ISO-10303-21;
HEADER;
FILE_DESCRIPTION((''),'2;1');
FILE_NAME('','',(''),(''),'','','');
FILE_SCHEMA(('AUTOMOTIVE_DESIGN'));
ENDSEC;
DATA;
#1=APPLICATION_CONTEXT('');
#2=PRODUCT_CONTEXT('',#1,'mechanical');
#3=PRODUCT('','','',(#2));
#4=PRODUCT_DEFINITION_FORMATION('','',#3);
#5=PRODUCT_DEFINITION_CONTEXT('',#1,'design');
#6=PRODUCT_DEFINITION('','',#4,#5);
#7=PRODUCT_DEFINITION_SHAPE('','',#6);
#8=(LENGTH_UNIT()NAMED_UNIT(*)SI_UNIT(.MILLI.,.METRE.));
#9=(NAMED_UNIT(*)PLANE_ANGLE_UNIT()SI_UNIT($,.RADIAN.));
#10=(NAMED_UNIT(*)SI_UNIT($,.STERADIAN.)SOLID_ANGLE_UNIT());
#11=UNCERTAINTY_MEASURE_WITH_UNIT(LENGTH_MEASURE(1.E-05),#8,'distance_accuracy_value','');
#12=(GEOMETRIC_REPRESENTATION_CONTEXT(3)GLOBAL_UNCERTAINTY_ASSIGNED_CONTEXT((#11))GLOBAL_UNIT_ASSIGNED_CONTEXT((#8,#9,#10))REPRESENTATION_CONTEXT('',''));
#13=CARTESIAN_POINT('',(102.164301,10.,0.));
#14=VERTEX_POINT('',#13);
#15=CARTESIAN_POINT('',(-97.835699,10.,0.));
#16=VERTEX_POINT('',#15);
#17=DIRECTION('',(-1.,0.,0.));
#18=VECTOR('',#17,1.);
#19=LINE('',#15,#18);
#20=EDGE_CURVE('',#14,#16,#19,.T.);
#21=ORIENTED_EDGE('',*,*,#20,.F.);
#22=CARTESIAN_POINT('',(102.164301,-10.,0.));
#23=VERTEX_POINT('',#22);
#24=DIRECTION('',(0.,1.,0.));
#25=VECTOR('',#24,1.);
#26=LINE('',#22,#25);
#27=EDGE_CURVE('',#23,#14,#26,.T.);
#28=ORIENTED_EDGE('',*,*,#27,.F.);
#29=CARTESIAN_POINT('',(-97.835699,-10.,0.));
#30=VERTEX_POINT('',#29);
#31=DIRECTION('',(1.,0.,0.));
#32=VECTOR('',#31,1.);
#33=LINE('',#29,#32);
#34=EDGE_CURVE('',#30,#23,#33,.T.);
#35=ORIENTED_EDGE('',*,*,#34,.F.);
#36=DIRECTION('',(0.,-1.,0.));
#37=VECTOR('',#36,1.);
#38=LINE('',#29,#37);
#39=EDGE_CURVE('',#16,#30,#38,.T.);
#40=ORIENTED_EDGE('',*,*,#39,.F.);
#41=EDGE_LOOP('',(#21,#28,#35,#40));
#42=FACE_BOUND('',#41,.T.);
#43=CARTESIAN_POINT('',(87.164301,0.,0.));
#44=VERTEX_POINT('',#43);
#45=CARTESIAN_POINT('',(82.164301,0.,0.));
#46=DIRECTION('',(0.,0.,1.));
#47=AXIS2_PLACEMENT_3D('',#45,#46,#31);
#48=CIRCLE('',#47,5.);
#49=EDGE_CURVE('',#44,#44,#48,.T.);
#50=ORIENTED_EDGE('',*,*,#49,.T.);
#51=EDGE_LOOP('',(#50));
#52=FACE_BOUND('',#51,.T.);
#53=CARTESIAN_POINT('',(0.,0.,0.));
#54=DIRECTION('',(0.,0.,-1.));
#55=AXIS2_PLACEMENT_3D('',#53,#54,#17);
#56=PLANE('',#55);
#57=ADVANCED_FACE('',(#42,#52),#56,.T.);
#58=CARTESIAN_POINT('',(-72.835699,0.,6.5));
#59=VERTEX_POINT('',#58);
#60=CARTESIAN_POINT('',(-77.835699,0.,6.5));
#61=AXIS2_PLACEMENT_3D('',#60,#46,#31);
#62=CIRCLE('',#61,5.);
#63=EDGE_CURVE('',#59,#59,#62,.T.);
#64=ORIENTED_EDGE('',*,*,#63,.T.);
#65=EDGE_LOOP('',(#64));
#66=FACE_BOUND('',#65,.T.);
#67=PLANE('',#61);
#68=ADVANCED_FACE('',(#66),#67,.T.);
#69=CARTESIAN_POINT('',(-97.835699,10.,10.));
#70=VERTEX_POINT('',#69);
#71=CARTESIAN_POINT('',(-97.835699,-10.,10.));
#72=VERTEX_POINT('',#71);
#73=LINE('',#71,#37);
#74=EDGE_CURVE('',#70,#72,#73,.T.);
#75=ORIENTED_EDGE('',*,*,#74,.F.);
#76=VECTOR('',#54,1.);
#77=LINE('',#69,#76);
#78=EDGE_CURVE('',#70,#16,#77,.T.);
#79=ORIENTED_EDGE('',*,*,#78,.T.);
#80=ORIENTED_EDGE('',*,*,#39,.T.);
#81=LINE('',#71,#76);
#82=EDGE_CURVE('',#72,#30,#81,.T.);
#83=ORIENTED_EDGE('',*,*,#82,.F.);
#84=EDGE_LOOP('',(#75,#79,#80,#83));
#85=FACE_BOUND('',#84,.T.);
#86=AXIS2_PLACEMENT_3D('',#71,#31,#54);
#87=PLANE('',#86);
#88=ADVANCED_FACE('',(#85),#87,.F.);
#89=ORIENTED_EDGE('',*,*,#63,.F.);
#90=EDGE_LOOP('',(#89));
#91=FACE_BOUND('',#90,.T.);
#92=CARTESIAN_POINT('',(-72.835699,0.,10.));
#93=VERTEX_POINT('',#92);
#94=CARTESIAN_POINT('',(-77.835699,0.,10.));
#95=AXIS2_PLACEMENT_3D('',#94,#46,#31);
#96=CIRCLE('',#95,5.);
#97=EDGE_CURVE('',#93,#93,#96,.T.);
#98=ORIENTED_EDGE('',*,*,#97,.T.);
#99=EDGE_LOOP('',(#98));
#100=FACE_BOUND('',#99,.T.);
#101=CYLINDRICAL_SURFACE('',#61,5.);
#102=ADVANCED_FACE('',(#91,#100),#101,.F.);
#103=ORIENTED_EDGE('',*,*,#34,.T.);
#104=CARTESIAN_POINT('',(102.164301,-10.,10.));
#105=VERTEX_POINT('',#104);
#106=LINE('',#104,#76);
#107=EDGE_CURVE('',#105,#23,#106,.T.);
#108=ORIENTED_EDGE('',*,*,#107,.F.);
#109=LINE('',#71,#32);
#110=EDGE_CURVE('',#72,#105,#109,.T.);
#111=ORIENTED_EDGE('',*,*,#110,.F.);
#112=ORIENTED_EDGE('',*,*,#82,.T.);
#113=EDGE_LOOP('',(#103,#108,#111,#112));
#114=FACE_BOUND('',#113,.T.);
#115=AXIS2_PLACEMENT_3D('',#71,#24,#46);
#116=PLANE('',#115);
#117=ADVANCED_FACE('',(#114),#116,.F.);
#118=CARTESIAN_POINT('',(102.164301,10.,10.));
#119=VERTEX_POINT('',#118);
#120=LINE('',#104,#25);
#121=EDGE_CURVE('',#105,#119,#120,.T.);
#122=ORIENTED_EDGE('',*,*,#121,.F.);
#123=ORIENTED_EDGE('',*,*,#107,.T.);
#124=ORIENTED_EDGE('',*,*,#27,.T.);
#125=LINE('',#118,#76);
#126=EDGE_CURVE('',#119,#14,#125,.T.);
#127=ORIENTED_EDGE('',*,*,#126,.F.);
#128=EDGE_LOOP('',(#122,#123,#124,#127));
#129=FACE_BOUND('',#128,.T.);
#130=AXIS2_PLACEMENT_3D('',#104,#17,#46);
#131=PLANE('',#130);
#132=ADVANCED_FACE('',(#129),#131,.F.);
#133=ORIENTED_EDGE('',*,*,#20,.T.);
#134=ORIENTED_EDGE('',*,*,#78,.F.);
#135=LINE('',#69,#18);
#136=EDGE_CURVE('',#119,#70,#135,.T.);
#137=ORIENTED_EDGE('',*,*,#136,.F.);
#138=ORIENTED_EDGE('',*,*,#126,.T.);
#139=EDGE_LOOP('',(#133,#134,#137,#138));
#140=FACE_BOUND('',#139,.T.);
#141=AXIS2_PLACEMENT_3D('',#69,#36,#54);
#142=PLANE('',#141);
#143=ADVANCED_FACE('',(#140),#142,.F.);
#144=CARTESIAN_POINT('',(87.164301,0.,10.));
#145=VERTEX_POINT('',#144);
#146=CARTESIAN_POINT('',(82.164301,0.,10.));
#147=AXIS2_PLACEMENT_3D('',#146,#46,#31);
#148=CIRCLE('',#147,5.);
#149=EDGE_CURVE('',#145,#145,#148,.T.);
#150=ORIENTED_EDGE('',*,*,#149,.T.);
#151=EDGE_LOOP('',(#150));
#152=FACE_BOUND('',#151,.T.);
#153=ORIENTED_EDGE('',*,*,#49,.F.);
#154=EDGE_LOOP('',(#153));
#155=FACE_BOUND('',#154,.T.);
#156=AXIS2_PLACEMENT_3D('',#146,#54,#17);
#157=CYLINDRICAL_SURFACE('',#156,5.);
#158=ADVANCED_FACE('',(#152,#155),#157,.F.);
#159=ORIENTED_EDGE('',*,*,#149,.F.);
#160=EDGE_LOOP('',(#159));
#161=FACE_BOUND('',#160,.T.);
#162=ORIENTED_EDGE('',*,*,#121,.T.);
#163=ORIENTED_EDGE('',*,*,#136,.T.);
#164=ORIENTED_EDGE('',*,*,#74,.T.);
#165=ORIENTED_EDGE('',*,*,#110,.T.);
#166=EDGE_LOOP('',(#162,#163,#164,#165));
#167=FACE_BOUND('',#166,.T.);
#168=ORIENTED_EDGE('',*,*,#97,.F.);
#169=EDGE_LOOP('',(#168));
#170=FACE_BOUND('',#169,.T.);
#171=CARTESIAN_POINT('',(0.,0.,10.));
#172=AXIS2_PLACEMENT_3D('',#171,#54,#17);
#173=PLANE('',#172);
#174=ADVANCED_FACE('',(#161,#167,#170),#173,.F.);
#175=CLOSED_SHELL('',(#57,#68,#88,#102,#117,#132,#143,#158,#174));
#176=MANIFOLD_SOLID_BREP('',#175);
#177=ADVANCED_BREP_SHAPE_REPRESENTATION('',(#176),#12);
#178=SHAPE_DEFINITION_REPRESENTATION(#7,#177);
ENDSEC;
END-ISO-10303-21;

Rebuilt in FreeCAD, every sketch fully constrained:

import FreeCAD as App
import Part
import Sketcher
Q = App.Units.Quantity


def add_polygon(sketch, points):
    """Adds a closed chain of lines whose ends are joined by coincident constraints."""
    first, n = sketch.GeometryCount, len(points)
    for a, b in zip(points, points[1:] + points[:1]):
        sketch.addGeometry(Part.LineSegment(App.Vector(*a, 0), App.Vector(*b, 0)), False)
    for i in range(n):
        sketch.addConstraint(Sketcher.Constraint("Coincident", first + i, 2, first + (i + 1) % n, 1))

doc = App.newDocument("Part")
body = doc.addObject("PartDesign::Body", "Body")

sketch1 = body.newObject("Sketcher::SketchObject", "Sketch")
sketch1.AttachmentSupport = (doc.getObject("XY_Plane"), [""])
sketch1.MapMode = "FlatFace"
add_polygon(sketch1, [(-98, 10), (-98, -10), (102, -10), (102, 10)])
sketch1.addGeometry(Part.Circle(App.Vector(82, 0, 0), App.Vector(0, 0, 1), 5), False)
sketch1.addConstraint([
    Sketcher.Constraint("Vertical", 0),
    Sketcher.Constraint("Horizontal", 1),
    Sketcher.Constraint("Vertical", 2),
    Sketcher.Constraint("Horizontal", 3),
    Sketcher.Constraint("PointOnObject", 4, 3, -1),
    Sketcher.Constraint("Diameter", 4, Q("10 mm")),
    Sketcher.Constraint("DistanceX", 1, 1, 1, 2, Q("200 mm")),
    Sketcher.Constraint("DistanceY", 0, 2, 0, 1, Q("20 mm")),
    Sketcher.Constraint("DistanceY", 0, 2, -1, 1, Q("10 mm")),
    Sketcher.Constraint("DistanceX", 0, 2, 4, 3, Q("180 mm")),
    Sketcher.Constraint("DistanceX", -1, 1, 4, 3, Q("82.164301 mm")),
])
pad1 = body.newObject("PartDesign::Pad", "Pad")
pad1.Profile = sketch1
pad1.Length = 10

sketch2 = body.newObject("Sketcher::SketchObject", "Sketch001")
sketch2.AttachmentSupport = (doc.getObject("XY_Plane"), [""])
sketch2.MapMode = "FlatFace"
sketch2.AttachmentOffset = App.Placement(App.Vector(0, 0, 10), App.Rotation())
sketch2.addGeometry(Part.Circle(App.Vector(-78, 0, 0), App.Vector(0, 0, 1), 5), False)
sketch2.addConstraint([
    Sketcher.Constraint("PointOnObject", 0, 3, -1),
    Sketcher.Constraint("Diameter", 0, Q("10 mm")),
    Sketcher.Constraint("DistanceX", 0, 3, -1, 1, Q("77.835699 mm")),
])
pocket1 = body.newObject("PartDesign::Pocket", "Pocket")
pocket1.Profile = sketch2
pocket1.Length = 3.5

doc.recompute()
